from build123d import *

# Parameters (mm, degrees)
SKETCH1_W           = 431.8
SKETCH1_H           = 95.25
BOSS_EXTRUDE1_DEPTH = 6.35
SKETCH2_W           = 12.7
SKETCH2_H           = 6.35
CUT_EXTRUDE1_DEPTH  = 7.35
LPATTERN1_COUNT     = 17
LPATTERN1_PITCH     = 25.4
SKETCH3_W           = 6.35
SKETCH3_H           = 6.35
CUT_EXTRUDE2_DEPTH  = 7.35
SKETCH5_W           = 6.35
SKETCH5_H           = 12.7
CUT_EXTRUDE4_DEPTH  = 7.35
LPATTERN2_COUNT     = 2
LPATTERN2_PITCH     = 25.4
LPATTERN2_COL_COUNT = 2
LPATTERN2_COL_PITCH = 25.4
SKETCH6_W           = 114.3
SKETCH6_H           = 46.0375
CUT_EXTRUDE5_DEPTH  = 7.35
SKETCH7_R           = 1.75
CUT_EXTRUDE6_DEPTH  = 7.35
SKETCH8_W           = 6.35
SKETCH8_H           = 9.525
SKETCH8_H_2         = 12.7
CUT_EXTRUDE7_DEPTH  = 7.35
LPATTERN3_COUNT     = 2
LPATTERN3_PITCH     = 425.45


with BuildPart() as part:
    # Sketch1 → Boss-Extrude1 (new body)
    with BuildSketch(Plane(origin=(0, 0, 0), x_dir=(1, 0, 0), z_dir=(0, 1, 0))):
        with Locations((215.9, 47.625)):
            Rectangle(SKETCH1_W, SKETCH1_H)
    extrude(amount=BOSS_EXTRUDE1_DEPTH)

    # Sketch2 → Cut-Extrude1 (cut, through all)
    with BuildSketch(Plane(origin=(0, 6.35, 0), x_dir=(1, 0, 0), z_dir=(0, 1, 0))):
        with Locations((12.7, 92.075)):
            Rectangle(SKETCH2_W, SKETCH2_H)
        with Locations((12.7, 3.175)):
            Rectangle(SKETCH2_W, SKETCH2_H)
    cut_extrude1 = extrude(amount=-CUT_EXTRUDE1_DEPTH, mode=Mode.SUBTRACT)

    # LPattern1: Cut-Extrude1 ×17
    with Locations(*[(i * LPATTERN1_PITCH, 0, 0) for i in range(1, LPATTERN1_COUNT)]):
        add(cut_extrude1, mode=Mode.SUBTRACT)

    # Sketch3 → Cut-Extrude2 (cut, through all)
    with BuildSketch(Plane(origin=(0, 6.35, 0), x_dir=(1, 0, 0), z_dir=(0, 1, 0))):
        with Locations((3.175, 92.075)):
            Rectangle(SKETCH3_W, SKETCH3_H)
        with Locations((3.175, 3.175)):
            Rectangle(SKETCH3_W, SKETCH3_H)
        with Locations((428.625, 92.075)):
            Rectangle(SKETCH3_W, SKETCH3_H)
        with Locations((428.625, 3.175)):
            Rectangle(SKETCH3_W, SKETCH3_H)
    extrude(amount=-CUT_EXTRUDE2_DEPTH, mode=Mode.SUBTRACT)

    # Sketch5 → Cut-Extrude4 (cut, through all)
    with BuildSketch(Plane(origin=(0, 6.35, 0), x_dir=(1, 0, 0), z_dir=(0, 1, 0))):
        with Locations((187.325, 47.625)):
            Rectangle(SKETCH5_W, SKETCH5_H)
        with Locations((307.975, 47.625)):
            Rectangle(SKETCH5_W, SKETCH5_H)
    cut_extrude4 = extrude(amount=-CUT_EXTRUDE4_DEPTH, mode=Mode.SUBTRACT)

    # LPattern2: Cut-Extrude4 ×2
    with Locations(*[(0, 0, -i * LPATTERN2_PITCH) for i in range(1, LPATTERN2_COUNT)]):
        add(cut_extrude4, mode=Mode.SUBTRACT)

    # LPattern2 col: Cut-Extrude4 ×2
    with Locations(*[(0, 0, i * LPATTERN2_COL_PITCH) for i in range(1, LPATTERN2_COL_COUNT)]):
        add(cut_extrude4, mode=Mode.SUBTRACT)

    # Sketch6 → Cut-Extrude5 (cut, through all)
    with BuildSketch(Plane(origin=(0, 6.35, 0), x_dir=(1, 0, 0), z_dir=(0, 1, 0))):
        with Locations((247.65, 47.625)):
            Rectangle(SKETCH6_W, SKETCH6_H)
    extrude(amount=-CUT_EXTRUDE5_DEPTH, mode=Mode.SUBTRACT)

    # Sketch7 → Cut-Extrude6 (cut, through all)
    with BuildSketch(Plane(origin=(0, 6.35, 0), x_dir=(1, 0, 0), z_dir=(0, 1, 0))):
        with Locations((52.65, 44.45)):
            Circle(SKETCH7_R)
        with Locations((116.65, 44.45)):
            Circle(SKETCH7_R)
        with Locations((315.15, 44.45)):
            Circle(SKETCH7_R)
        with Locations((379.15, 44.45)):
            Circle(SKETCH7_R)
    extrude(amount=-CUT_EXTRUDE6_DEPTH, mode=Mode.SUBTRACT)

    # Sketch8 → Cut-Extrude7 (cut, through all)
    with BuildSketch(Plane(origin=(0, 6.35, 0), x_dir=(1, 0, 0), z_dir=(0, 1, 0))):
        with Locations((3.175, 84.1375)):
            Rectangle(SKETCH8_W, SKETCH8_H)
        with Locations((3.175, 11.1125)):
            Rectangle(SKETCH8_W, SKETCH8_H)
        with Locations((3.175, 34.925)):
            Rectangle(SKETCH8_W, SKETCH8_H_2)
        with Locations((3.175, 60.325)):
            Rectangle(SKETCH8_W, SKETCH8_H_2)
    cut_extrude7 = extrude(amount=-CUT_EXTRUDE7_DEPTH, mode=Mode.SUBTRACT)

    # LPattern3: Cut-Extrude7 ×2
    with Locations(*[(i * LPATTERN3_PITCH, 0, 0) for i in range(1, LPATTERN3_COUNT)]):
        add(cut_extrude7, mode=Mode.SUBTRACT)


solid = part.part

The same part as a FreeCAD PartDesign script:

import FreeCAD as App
import Part
import Sketcher
from FreeCAD import Vector
Q = App.Units.Quantity

doc = App.newDocument("Part")
body = doc.addObject("PartDesign::Body", "Body")

sketch1 = body.newObject("Sketcher::SketchObject", "Sketch")
sketch1.AttachmentSupport = (doc.getObject("XZ_Plane"), [""])
sketch1.MapMode = "FlatFace"
sketch1.addGeometry(Part.LineSegment(Vector(0, -95, 0), Vector(0, 0, 0)), False)
sketch1.addGeometry(Part.LineSegment(Vector(0, 0, 0), Vector(432, 0, 0)), False)
sketch1.addGeometry(Part.LineSegment(Vector(432, 0, 0), Vector(432, -95, 0)), False)
sketch1.addGeometry(Part.LineSegment(Vector(432, -95, 0), Vector(0, -95, 0)), False)
sketch1.addConstraint(Sketcher.Constraint("Coincident", 0, 2, 1, 1))
sketch1.addConstraint(Sketcher.Constraint("Coincident", 1, 2, 2, 1))
sketch1.addConstraint(Sketcher.Constraint("Coincident", 2, 2, 3, 1))
sketch1.addConstraint(Sketcher.Constraint("Coincident", 3, 2, 0, 1))
sketch1.addConstraint(Sketcher.Constraint("Vertical", 0))
sketch1.addConstraint(Sketcher.Constraint("Horizontal", 1))
sketch1.addConstraint(Sketcher.Constraint("Vertical", 2))
sketch1.addConstraint(Sketcher.Constraint("Horizontal", 3))
sketch1.addConstraint(Sketcher.Constraint("Coincident", 0, 2, -1, 1))
sketch1.addConstraint(Sketcher.Constraint("DistanceX", 1, 1, 1, 2, Q("17 in")))
sketch1.addConstraint(Sketcher.Constraint("DistanceY", 0, 1, 0, 2, Q("3.75 in")))
pad1 = body.newObject("PartDesign::Pad", "Pad")
pad1.Profile = sketch1
pad1.Length = Q("0.25 in")
pad1.Reversed = True

sketch2 = body.newObject("Sketcher::SketchObject", "Sketch001")
sketch2.AttachmentSupport = (doc.getObject("XZ_Plane"), [""])
sketch2.MapMode = "FlatFace"
sketch2.AttachmentOffset = App.Placement(Vector(0, 0, -0.25 * 25.4), App.Rotation())
sketch2.addGeometry(Part.LineSegment(Vector(6, -95, 0), Vector(6, -89, 0)), False)
sketch2.addGeometry(Part.LineSegment(Vector(6, -89, 0), Vector(19, -89, 0)), False)
sketch2.addGeometry(Part.LineSegment(Vector(19, -89, 0), Vector(19, -95, 0)), False)
sketch2.addGeometry(Part.LineSegment(Vector(19, -95, 0), Vector(6, -95, 0)), False)
sketch2.addGeometry(Part.LineSegment(Vector(6, -6, 0), Vector(6, 0, 0)), False)
sketch2.addGeometry(Part.LineSegment(Vector(6, 0, 0), Vector(19, 0, 0)), False)
sketch2.addGeometry(Part.LineSegment(Vector(19, 0, 0), Vector(19, -6, 0)), False)
sketch2.addGeometry(Part.LineSegment(Vector(19, -6, 0), Vector(6, -6, 0)), False)
sketch2.addConstraint(Sketcher.Constraint("Coincident", 0, 2, 1, 1))
sketch2.addConstraint(Sketcher.Constraint("Coincident", 1, 2, 2, 1))
sketch2.addConstraint(Sketcher.Constraint("Coincident", 2, 2, 3, 1))
sketch2.addConstraint(Sketcher.Constraint("Coincident", 3, 2, 0, 1))
sketch2.addConstraint(Sketcher.Constraint("Coincident", 4, 2, 5, 1))
sketch2.addConstraint(Sketcher.Constraint("Coincident", 5, 2, 6, 1))
sketch2.addConstraint(Sketcher.Constraint("Coincident", 6, 2, 7, 1))
sketch2.addConstraint(Sketcher.Constraint("Coincident", 7, 2, 4, 1))
sketch2.addConstraint(Sketcher.Constraint("Vertical", 0))
sketch2.addConstraint(Sketcher.Constraint("Horizontal", 1))
sketch2.addConstraint(Sketcher.Constraint("Vertical", 2))
sketch2.addConstraint(Sketcher.Constraint("Horizontal", 3))
sketch2.addConstraint(Sketcher.Constraint("Vertical", 4))
sketch2.addConstraint(Sketcher.Constraint("Horizontal", 5))
sketch2.addConstraint(Sketcher.Constraint("Vertical", 6))
sketch2.addConstraint(Sketcher.Constraint("Horizontal", 7))
sketch2.addConstraint(Sketcher.Constraint("PointOnObject", 4, 2, -1))
sketch2.addConstraint(Sketcher.Constraint("Vertical", 3, 2, 4, 2))
sketch2.addConstraint(Sketcher.Constraint("Vertical", 2, 2, 5, 2))
sketch2.addConstraint(Sketcher.Constraint("Equal", 2, 4))
sketch2.addConstraint(Sketcher.Constraint("DistanceX", 1, 1, 1, 2, Q("0.5 in")))
sketch2.addConstraint(Sketcher.Constraint("DistanceY", 0, 1, 0, 2, Q("0.25 in")))
sketch2.addConstraint(Sketcher.Constraint("DistanceY", 0, 2, -1, 1, Q("3.5 in")))
sketch2.addConstraint(Sketcher.Constraint("DistanceX", -1, 1, 0, 2, Q("0.25 in")))
pocket1 = body.newObject("PartDesign::Pocket", "Pocket")
pocket1.Profile = sketch2
pocket1.Type = "ThroughAll"
pocket1.Reversed = True
doc.recompute()

linearpattern = body.newObject("PartDesign::LinearPattern", "LinearPattern")
linearpattern.Originals = [pocket1]
linearpattern.Direction = (doc.getObject("X_Axis"), [""])
linearpattern.Mode = "offset"
linearpattern.Offset = Q("1 in")
linearpattern.Occurrences = 17
body.Tip = linearpattern

sketch3 = body.newObject("Sketcher::SketchObject", "Sketch002")
sketch3.AttachmentSupport = (doc.getObject("XZ_Plane"), [""])
sketch3.MapMode = "FlatFace"
sketch3.AttachmentOffset = App.Placement(Vector(0, 0, -0.25 * 25.4), App.Rotation())
sketch3.addGeometry(Part.LineSegment(Vector(0, -95, 0), Vector(0, -89, 0)), False)
sketch3.addGeometry(Part.LineSegment(Vector(0, -89, 0), Vector(6, -89, 0)), False)
sketch3.addGeometry(Part.LineSegment(Vector(6, -89, 0), Vector(6, -95, 0)), False)
sketch3.addGeometry(Part.LineSegment(Vector(6, -95, 0), Vector(0, -95, 0)), False)
sketch3.addGeometry(Part.LineSegment(Vector(0, -6, 0), Vector(0, 0, 0)), False)
sketch3.addGeometry(Part.LineSegment(Vector(0, 0, 0), Vector(6, 0, 0)), False)
sketch3.addGeometry(Part.LineSegment(Vector(6, 0, 0), Vector(6, -6, 0)), False)
sketch3.addGeometry(Part.LineSegment(Vector(6, -6, 0), Vector(0, -6, 0)), False)
sketch3.addGeometry(Part.LineSegment(Vector(425, -95, 0), Vector(425, -89, 0)), False)
sketch3.addGeometry(Part.LineSegment(Vector(425, -89, 0), Vector(432, -89, 0)), False)
sketch3.addGeometry(Part.LineSegment(Vector(432, -89, 0), Vector(432, -95, 0)), False)
sketch3.addGeometry(Part.LineSegment(Vector(432, -95, 0), Vector(425, -95, 0)), False)
sketch3.addGeometry(Part.LineSegment(Vector(425, -6, 0), Vector(425, 0, 0)), False)
sketch3.addGeometry(Part.LineSegment(Vector(425, 0, 0), Vector(432, 0, 0)), False)
sketch3.addGeometry(Part.LineSegment(Vector(432, 0, 0), Vector(432, -6, 0)), False)
sketch3.addGeometry(Part.LineSegment(Vector(432, -6, 0), Vector(425, -6, 0)), False)
sketch3.addConstraint(Sketcher.Constraint("Coincident", 0, 2, 1, 1))
sketch3.addConstraint(Sketcher.Constraint("Coincident", 1, 2, 2, 1))
sketch3.addConstraint(Sketcher.Constraint("Coincident", 2, 2, 3, 1))
sketch3.addConstraint(Sketcher.Constraint("Coincident", 3, 2, 0, 1))
sketch3.addConstraint(Sketcher.Constraint("Coincident", 4, 2, 5, 1))
sketch3.addConstraint(Sketcher.Constraint("Coincident", 5, 2, 6, 1))
sketch3.addConstraint(Sketcher.Constraint("Coincident", 6, 2, 7, 1))
sketch3.addConstraint(Sketcher.Constraint("Coincident", 7, 2, 4, 1))
sketch3.addConstraint(Sketcher.Constraint("Coincident", 8, 2, 9, 1))
sketch3.addConstraint(Sketcher.Constraint("Coincident", 9, 2, 10, 1))
sketch3.addConstraint(Sketcher.Constraint("Coincident", 10, 2, 11, 1))
sketch3.addConstraint(Sketcher.Constraint("Coincident", 11, 2, 8, 1))
sketch3.addConstraint(Sketcher.Constraint("Coincident", 12, 2, 13, 1))
sketch3.addConstraint(Sketcher.Constraint("Coincident", 13, 2, 14, 1))
sketch3.addConstraint(Sketcher.Constraint("Coincident", 14, 2, 15, 1))
sketch3.addConstraint(Sketcher.Constraint("Coincident", 15, 2, 12, 1))
sketch3.addConstraint(Sketcher.Constraint("Vertical", 0))
sketch3.addConstraint(Sketcher.Constraint("Horizontal", 1))
sketch3.addConstraint(Sketcher.Constraint("Vertical", 2))
sketch3.addConstraint(Sketcher.Constraint("Horizontal", 3))
sketch3.addConstraint(Sketcher.Constraint("Vertical", 4))
sketch3.addConstraint(Sketcher.Constraint("Horizontal", 5))
sketch3.addConstraint(Sketcher.Constraint("Vertical", 6))
sketch3.addConstraint(Sketcher.Constraint("Horizontal", 7))
sketch3.addConstraint(Sketcher.Constraint("Vertical", 8))
sketch3.addConstraint(Sketcher.Constraint("Horizontal", 9))
sketch3.addConstraint(Sketcher.Constraint("Vertical", 10))
sketch3.addConstraint(Sketcher.Constraint("Horizontal", 11))
sketch3.addConstraint(Sketcher.Constraint("Vertical", 12))
sketch3.addConstraint(Sketcher.Constraint("Horizontal", 13))
sketch3.addConstraint(Sketcher.Constraint("Vertical", 14))
sketch3.addConstraint(Sketcher.Constraint("Horizontal", 15))
sketch3.addConstraint(Sketcher.Constraint("Coincident", 4, 2, -1, 1))
sketch3.addConstraint(Sketcher.Constraint("PointOnObject", 0, 2, -2))
sketch3.addConstraint(Sketcher.Constraint("PointOnObject", 12, 2, -1))
sketch3.addConstraint(Sketcher.Constraint("Horizontal", 1, 2, 8, 2))
sketch3.addConstraint(Sketcher.Constraint("Horizontal", 3, 2, 10, 2))
sketch3.addConstraint(Sketcher.Constraint("Horizontal", 7, 2, 14, 2))
sketch3.addConstraint(Sketcher.Constraint("Vertical", 2, 2, 5, 2))
sketch3.addConstraint(Sketcher.Constraint("Vertical", 11, 2, 12, 2))
sketch3.addConstraint(Sketcher.Constraint("Vertical", 10, 2, 13, 2))
sketch3.addConstraint(Sketcher.Constraint("Equal", 7, 9))
sketch3.addConstraint(Sketcher.Constraint("Equal", 15, 0))
sketch3.addConstraint(Sketcher.Constraint("Equal", 2, 4))
sketch3.addConstraint(Sketcher.Constraint("DistanceX", -1, 1, 9, 2, Q("17 in")))
sketch3.addConstraint(Sketcher.Constraint("DistanceX", 1, 1, 1, 2, Q("0.25 in")))
sketch3.addConstraint(Sketcher.Constraint("DistanceY", 0, 2, -1, 1, Q("3.5 in")))
pocket2 = body.newObject("PartDesign::Pocket", "Pocket001")
pocket2.Profile = sketch3
pocket2.Type = "ThroughAll"
pocket2.Reversed = True

sketch4 = body.newObject("Sketcher::SketchObject", "Sketch003")
sketch4.AttachmentSupport = (doc.getObject("XZ_Plane"), [""])
sketch4.MapMode = "FlatFace"
sketch4.AttachmentOffset = App.Placement(Vector(0, 0, -0.25 * 25.4), App.Rotation())
sketch4.addGeometry(Part.LineSegment(Vector(184, -54, 0), Vector(184, -41, 0)), False)
sketch4.addGeometry(Part.LineSegment(Vector(184, -41, 0), Vector(190, -41, 0)), False)
sketch4.addGeometry(Part.LineSegment(Vector(190, -41, 0), Vector(190, -54, 0)), False)
sketch4.addGeometry(Part.LineSegment(Vector(190, -54, 0), Vector(184, -54, 0)), False)
sketch4.addGeometry(Part.LineSegment(Vector(305, -54, 0), Vector(305, -41, 0)), False)
sketch4.addGeometry(Part.LineSegment(Vector(305, -41, 0), Vector(311, -41, 0)), False)
sketch4.addGeometry(Part.LineSegment(Vector(311, -41, 0), Vector(311, -54, 0)), False)
sketch4.addGeometry(Part.LineSegment(Vector(311, -54, 0), Vector(305, -54, 0)), False)
sketch4.addConstraint(Sketcher.Constraint("Coincident", 0, 2, 1, 1))
sketch4.addConstraint(Sketcher.Constraint("Coincident", 1, 2, 2, 1))
sketch4.addConstraint(Sketcher.Constraint("Coincident", 2, 2, 3, 1))
sketch4.addConstraint(Sketcher.Constraint("Coincident", 3, 2, 0, 1))
sketch4.addConstraint(Sketcher.Constraint("Coincident", 4, 2, 5, 1))
sketch4.addConstraint(Sketcher.Constraint("Coincident", 5, 2, 6, 1))
sketch4.addConstraint(Sketcher.Constraint("Coincident", 6, 2, 7, 1))
sketch4.addConstraint(Sketcher.Constraint("Coincident", 7, 2, 4, 1))
sketch4.addConstraint(Sketcher.Constraint("Vertical", 0))
sketch4.addConstraint(Sketcher.Constraint("Horizontal", 1))
sketch4.addConstraint(Sketcher.Constraint("Vertical", 2))
sketch4.addConstraint(Sketcher.Constraint("Horizontal", 3))
sketch4.addConstraint(Sketcher.Constraint("Vertical", 4))
sketch4.addConstraint(Sketcher.Constraint("Horizontal", 5))
sketch4.addConstraint(Sketcher.Constraint("Vertical", 6))
sketch4.addConstraint(Sketcher.Constraint("Horizontal", 7))
sketch4.addConstraint(Sketcher.Constraint("Horizontal", 1, 2, 4, 2))
sketch4.addConstraint(Sketcher.Constraint("Horizontal", 3, 2, 6, 2))
sketch4.addConstraint(Sketcher.Constraint("Equal", 3, 5))
sketch4.addConstraint(Sketcher.Constraint("DistanceY", 0, 1, 0, 2, Q("0.5 in")))
sketch4.addConstraint(Sketcher.Constraint("DistanceX", -1, 1, 4, 2, Q("12 in")))
sketch4.addConstraint(Sketcher.Constraint("DistanceX", 0, 2, 5, 2, Q("5 in")))
sketch4.addConstraint(Sketcher.Constraint("DistanceX", 1, 1, 1, 2, Q("0.25 in")))
sketch4.addConstraint(Sketcher.Constraint("DistanceY", 0, 2, -1, 1, Q("1.625 in")))
pocket3 = body.newObject("PartDesign::Pocket", "Pocket002")
pocket3.Profile = sketch4
pocket3.Type = "ThroughAll"
pocket3.Reversed = True
doc.recompute()

linearpattern2 = body.newObject("PartDesign::LinearPattern", "LinearPattern001")
linearpattern2.Originals = [pocket3]
linearpattern2.Direction = (doc.getObject("Z_Axis"), [""])
linearpattern2.Mode = "offset"
linearpattern2.Offset = Q("1 in")
linearpattern2.Occurrences = 2
linearpattern2.Reversed = True
body.Tip = linearpattern2
doc.recompute()

linearpattern3 = body.newObject("PartDesign::LinearPattern", "LinearPattern002")
linearpattern3.Originals = [pocket3]
linearpattern3.Direction = (doc.getObject("Z_Axis"), [""])
linearpattern3.Mode = "offset"
linearpattern3.Offset = Q("1 in")
linearpattern3.Occurrences = 2
body.Tip = linearpattern3

sketch5 = body.newObject("Sketcher::SketchObject", "Sketch004")
sketch5.AttachmentSupport = (doc.getObject("XZ_Plane"), [""])
sketch5.MapMode = "FlatFace"
sketch5.AttachmentOffset = App.Placement(Vector(0, 0, -0.25 * 25.4), App.Rotation())
sketch5.addGeometry(Part.LineSegment(Vector(190, -71, 0), Vector(190, -25, 0)), False)
sketch5.addGeometry(Part.LineSegment(Vector(190, -25, 0), Vector(305, -25, 0)), False)
sketch5.addGeometry(Part.LineSegment(Vector(305, -25, 0), Vector(305, -71, 0)), False)
sketch5.addGeometry(Part.LineSegment(Vector(305, -71, 0), Vector(190, -71, 0)), False)
sketch5.addConstraint(Sketcher.Constraint("Coincident", 0, 2, 1, 1))
sketch5.addConstraint(Sketcher.Constraint("Coincident", 1, 2, 2, 1))
sketch5.addConstraint(Sketcher.Constraint("Coincident", 2, 2, 3, 1))
sketch5.addConstraint(Sketcher.Constraint("Coincident", 3, 2, 0, 1))
sketch5.addConstraint(Sketcher.Constraint("Vertical", 0))
sketch5.addConstraint(Sketcher.Constraint("Horizontal", 1))
sketch5.addConstraint(Sketcher.Constraint("Vertical", 2))
sketch5.addConstraint(Sketcher.Constraint("Horizontal", 3))
sketch5.addConstraint(Sketcher.Constraint("DistanceX", 1, 1, 1, 2, Q("4.5 in")))
sketch5.addConstraint(Sketcher.Constraint("DistanceX", -1, 1, 1, 2, Q("12 in")))
sketch5.addConstraint(Sketcher.Constraint("DistanceY", 0, 1, 0, 2, Q("1.8125 in")))
sketch5.addConstraint(Sketcher.Constraint("DistanceY", 0, 2, -1, 1, Q("0.96875 in")))
pocket4 = body.newObject("PartDesign::Pocket", "Pocket003")
pocket4.Profile = sketch5
pocket4.Type = "ThroughAll"
pocket4.Reversed = True

sketch6 = body.newObject("Sketcher::SketchObject", "Sketch005")
sketch6.AttachmentSupport = (doc.getObject("XZ_Plane"), [""])
sketch6.MapMode = "FlatFace"
sketch6.AttachmentOffset = App.Placement(Vector(0, 0, -0.25 * 25.4), App.Rotation())
sketch6.addGeometry(Part.Circle(Vector(52.6, -44.5, 0), Vector(0, 0, 1), 1.8), False)
sketch6.addGeometry(Part.Circle(Vector(116.7, -44.5, 0), Vector(0, 0, 1), 1.8), False)
sketch6.addGeometry(Part.Circle(Vector(315.1, -44.5, 0), Vector(0, 0, 1), 1.8), False)
sketch6.addGeometry(Part.Circle(Vector(379.1, -44.5, 0), Vector(0, 0, 1), 1.8), False)
sketch6.addConstraint(Sketcher.Constraint("Equal", 0, 1))
sketch6.addConstraint(Sketcher.Constraint("Equal", 1, 2))
sketch6.addConstraint(Sketcher.Constraint("Equal", 2, 3))
sketch6.addConstraint(Sketcher.Constraint("Horizontal", 0, 3, 1, 3))
sketch6.addConstraint(Sketcher.Constraint("Horizontal", 1, 3, 2, 3))
sketch6.addConstraint(Sketcher.Constraint("Horizontal", 2, 3, 3, 3))
sketch6.addConstraint(Sketcher.Constraint("Diameter", 0, 3.5))
sketch6.addConstraint(Sketcher.Constraint("DistanceY", 0, 3, -1, 1, Q("1.75 in")))
sketch6.addConstraint(Sketcher.Constraint("DistanceX", -1, 1, 0, 3, 52.65))
sketch6.addConstraint(Sketcher.Constraint("DistanceX", -1, 1, 1, 3, 116.65))
sketch6.addConstraint(Sketcher.Constraint("DistanceX", -1, 1, 2, 3, 315.15))
sketch6.addConstraint(Sketcher.Constraint("DistanceX", -1, 1, 3, 3, 379.15))
pocket5 = body.newObject("PartDesign::Pocket", "Pocket004")
pocket5.Profile = sketch6
pocket5.Type = "ThroughAll"
pocket5.Reversed = True

sketch7 = body.newObject("Sketcher::SketchObject", "Sketch006")
sketch7.AttachmentSupport = (doc.getObject("XZ_Plane"), [""])
sketch7.MapMode = "FlatFace"
sketch7.AttachmentOffset = App.Placement(Vector(0, 0, -0.25 * 25.4), App.Rotation())
sketch7.addGeometry(Part.LineSegment(Vector(0, -89, 0), Vector(0, -79, 0)), False)
sketch7.addGeometry(Part.LineSegment(Vector(0, -79, 0), Vector(6, -79, 0)), False)
sketch7.addGeometry(Part.LineSegment(Vector(6, -79, 0), Vector(6, -89, 0)), False)
sketch7.addGeometry(Part.LineSegment(Vector(6, -89, 0), Vector(0, -89, 0)), False)
sketch7.addGeometry(Part.LineSegment(Vector(0, -16, 0), Vector(0, -6, 0)), False)
sketch7.addGeometry(Part.LineSegment(Vector(0, -6, 0), Vector(6, -6, 0)), False)
sketch7.addGeometry(Part.LineSegment(Vector(6, -6, 0), Vector(6, -16, 0)), False)
sketch7.addGeometry(Part.LineSegment(Vector(6, -16, 0), Vector(0, -16, 0)), False)
sketch7.addGeometry(Part.LineSegment(Vector(0, -41, 0), Vector(0, -29, 0)), False)
sketch7.addGeometry(Part.LineSegment(Vector(0, -29, 0), Vector(6, -29, 0)), False)
sketch7.addGeometry(Part.LineSegment(Vector(6, -29, 0), Vector(6, -41, 0)), False)
sketch7.addGeometry(Part.LineSegment(Vector(6, -41, 0), Vector(0, -41, 0)), False)
sketch7.addGeometry(Part.LineSegment(Vector(0, -67, 0), Vector(0, -54, 0)), False)
sketch7.addGeometry(Part.LineSegment(Vector(0, -54, 0), Vector(6, -54, 0)), False)
sketch7.addGeometry(Part.LineSegment(Vector(6, -54, 0), Vector(6, -67, 0)), False)
sketch7.addGeometry(Part.LineSegment(Vector(6, -67, 0), Vector(0, -67, 0)), False)
sketch7.addConstraint(Sketcher.Constraint("Coincident", 0, 2, 1, 1))
sketch7.addConstraint(Sketcher.Constraint("Coincident", 1, 2, 2, 1))
sketch7.addConstraint(Sketcher.Constraint("Coincident", 2, 2, 3, 1))
sketch7.addConstraint(Sketcher.Constraint("Coincident", 3, 2, 0, 1))
sketch7.addConstraint(Sketcher.Constraint("Coincident", 4, 2, 5, 1))
sketch7.addConstraint(Sketcher.Constraint("Coincident", 5, 2, 6, 1))
sketch7.addConstraint(Sketcher.Constraint("Coincident", 6, 2, 7, 1))
sketch7.addConstraint(Sketcher.Constraint("Coincident", 7, 2, 4, 1))
sketch7.addConstraint(Sketcher.Constraint("Coincident", 8, 2, 9, 1))
sketch7.addConstraint(Sketcher.Constraint("Coincident", 9, 2, 10, 1))
sketch7.addConstraint(Sketcher.Constraint("Coincident", 10, 2, 11, 1))
sketch7.addConstraint(Sketcher.Constraint("Coincident", 11, 2, 8, 1))
sketch7.addConstraint(Sketcher.Constraint("Coincident", 12, 2, 13, 1))
sketch7.addConstraint(Sketcher.Constraint("Coincident", 13, 2, 14, 1))
sketch7.addConstraint(Sketcher.Constraint("Coincident", 14, 2, 15, 1))
sketch7.addConstraint(Sketcher.Constraint("Coincident", 15, 2, 12, 1))
sketch7.addConstraint(Sketcher.Constraint("Vertical", 0))
sketch7.addConstraint(Sketcher.Constraint("Horizontal", 1))
sketch7.addConstraint(Sketcher.Constraint("Vertical", 2))
sketch7.addConstraint(Sketcher.Constraint("Horizontal", 3))
sketch7.addConstraint(Sketcher.Constraint("Vertical", 4))
sketch7.addConstraint(Sketcher.Constraint("Horizontal", 5))
sketch7.addConstraint(Sketcher.Constraint("Vertical", 6))
sketch7.addConstraint(Sketcher.Constraint("Horizontal", 7))
sketch7.addConstraint(Sketcher.Constraint("Vertical", 8))
sketch7.addConstraint(Sketcher.Constraint("Horizontal", 9))
sketch7.addConstraint(Sketcher.Constraint("Vertical", 10))
sketch7.addConstraint(Sketcher.Constraint("Horizontal", 11))
sketch7.addConstraint(Sketcher.Constraint("Vertical", 12))
sketch7.addConstraint(Sketcher.Constraint("Horizontal", 13))
sketch7.addConstraint(Sketcher.Constraint("Vertical", 14))
sketch7.addConstraint(Sketcher.Constraint("Horizontal", 15))
sketch7.addConstraint(Sketcher.Constraint("PointOnObject", 0, 2, -2))
sketch7.addConstraint(Sketcher.Constraint("PointOnObject", 4, 2, -2))
sketch7.addConstraint(Sketcher.Constraint("PointOnObject", 8, 2, -2))
sketch7.addConstraint(Sketcher.Constraint("PointOnObject", 12, 2, -2))
sketch7.addConstraint(Sketcher.Constraint("Vertical", 2, 2, 5, 2))
sketch7.addConstraint(Sketcher.Constraint("Vertical", 6, 2, 9, 2))
sketch7.addConstraint(Sketcher.Constraint("Vertical", 10, 2, 13, 2))
sketch7.addConstraint(Sketcher.Constraint("Equal", 2, 4))
sketch7.addConstraint(Sketcher.Constraint("Equal", 10, 12))
sketch7.addConstraint(Sketcher.Constraint("DistanceY", 8, 1, 8, 2, Q("0.5 in")))
sketch7.addConstraint(Sketcher.Constraint("DistanceY", 0, 2, 8, 2, Q("2 in")))
sketch7.addConstraint(Sketcher.Constraint("DistanceY", 10, 2, 6, 2, Q("1 in")))
sketch7.addConstraint(Sketcher.Constraint("DistanceY", 0, 2, 12, 2, Q("1 in")))
sketch7.addConstraint(Sketcher.Constraint("DistanceX", 1, 1, 1, 2, Q("0.25 in")))
sketch7.addConstraint(Sketcher.Constraint("DistanceY", 2, 2, -1, 1, Q("3.5 in")))
sketch7.addConstraint(Sketcher.Constraint("DistanceY", 0, 1, 0, 2, Q("0.375 in")))
pocket6 = body.newObject("PartDesign::Pocket", "Pocket005")
pocket6.Profile = sketch7
pocket6.Type = "ThroughAll"
pocket6.Reversed = True
doc.recompute()

linearpattern4 = body.newObject("PartDesign::LinearPattern", "LinearPattern003")
linearpattern4.Originals = [pocket6]
linearpattern4.Direction = (doc.getObject("X_Axis"), [""])
linearpattern4.Mode = "offset"
linearpattern4.Offset = Q("16.75 in")
linearpattern4.Occurrences = 2
body.Tip = linearpattern4

doc.recompute()
